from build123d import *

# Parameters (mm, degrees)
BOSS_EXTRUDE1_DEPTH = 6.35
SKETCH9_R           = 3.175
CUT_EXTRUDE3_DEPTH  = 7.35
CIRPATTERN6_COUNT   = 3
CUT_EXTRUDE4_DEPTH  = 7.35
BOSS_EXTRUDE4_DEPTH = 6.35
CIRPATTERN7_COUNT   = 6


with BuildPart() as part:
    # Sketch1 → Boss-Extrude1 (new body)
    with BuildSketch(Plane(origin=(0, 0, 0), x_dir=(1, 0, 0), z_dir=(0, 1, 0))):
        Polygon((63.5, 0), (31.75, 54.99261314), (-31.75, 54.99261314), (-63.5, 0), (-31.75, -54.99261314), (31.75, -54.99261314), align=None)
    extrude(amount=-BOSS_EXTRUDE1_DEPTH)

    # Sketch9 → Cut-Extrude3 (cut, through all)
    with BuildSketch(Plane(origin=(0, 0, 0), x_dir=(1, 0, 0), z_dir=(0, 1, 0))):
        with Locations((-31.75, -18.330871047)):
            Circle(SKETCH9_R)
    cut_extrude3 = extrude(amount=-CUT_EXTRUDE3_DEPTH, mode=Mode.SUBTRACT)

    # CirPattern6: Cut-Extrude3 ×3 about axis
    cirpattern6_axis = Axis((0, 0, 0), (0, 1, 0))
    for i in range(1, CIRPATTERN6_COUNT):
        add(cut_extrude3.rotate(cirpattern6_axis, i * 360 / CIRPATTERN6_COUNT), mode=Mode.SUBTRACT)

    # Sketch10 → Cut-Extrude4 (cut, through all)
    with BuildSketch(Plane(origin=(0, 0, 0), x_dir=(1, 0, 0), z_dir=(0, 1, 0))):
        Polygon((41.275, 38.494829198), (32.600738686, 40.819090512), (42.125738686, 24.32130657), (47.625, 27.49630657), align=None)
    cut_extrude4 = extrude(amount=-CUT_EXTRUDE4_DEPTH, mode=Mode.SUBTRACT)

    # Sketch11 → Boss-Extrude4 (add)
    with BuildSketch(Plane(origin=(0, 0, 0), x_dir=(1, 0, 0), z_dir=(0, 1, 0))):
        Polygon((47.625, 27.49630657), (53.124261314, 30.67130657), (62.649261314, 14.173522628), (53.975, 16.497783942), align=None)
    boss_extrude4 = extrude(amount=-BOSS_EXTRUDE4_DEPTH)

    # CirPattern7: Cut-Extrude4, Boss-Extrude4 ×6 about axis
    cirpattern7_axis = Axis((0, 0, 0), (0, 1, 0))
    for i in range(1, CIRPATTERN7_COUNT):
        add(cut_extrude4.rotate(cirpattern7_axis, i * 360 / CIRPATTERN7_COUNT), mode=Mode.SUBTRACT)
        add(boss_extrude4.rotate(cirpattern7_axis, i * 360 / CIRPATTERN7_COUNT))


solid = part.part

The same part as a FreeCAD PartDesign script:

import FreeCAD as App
import Part
import Sketcher

V = App.Vector
Q = App.Units.Quantity


def add_polygon(sketch, points):
    """Adds a closed chain of lines whose ends are joined by coincident constraints."""
    first, n = sketch.GeometryCount, len(points)
    for a, b in zip(points, points[1:] + points[:1]):
        sketch.addGeometry(Part.LineSegment(App.Vector(*a, 0), App.Vector(*b, 0)), False)
    for i in range(n):
        sketch.addConstraint(Sketcher.Constraint("Coincident", first + i, 2, first + (i + 1) % n, 1))

doc = App.newDocument("Part")
body = doc.addObject("PartDesign::Body", "Body")

# Sketch on XZ plane
sketch1 = body.newObject("Sketcher::SketchObject", "Sketch")
sketch1.AttachmentSupport = (doc.getObject("XZ_Plane"), [""])
sketch1.MapMode = "FlatFace"
add_polygon(sketch1, [(64, 0), (32, -55), (-32, -55), (-64, 0), (-32, 55), (32, 55)])  # lines 0-5
sketch1.addConstraint([
    Sketcher.Constraint("Horizontal", 1),
    Sketcher.Constraint("Horizontal", 4),
    Sketcher.Constraint("Symmetric", 0, 2, 3, 2, -1, 1),
    Sketcher.Constraint("Symmetric", 2, 2, 5, 2, -1, 1),
    Sketcher.Constraint("PointOnObject", 2, 2, -1),
    Sketcher.Constraint("Parallel", 2, 5),
    Sketcher.Constraint("Vertical", 1, 2, 3, 2),
    Sketcher.Constraint("DistanceX", 1, 2, 1, 1, Q("2.5 in")),
    Sketcher.Constraint("Angle", 0, Q("-120 deg")),
    Sketcher.Constraint("DistanceX", 2, 2, 5, 2, Q("5 in")),
])
pad1 = body.newObject("PartDesign::Pad", "Pad")
pad1.Profile = sketch1
pad1.Length = Q("0.25 in")

# Sketch on XZ plane
sketch2 = body.newObject("Sketcher::SketchObject", "Sketch001")
sketch2.AttachmentSupport = (doc.getObject("XZ_Plane"), [""])
sketch2.MapMode = "FlatFace"
sketch2.addGeometry(Part.Circle(V(-31.8, 18.3, 0), V(0, 0, 1), 3.2), False)
sketch2.addConstraint([
    Sketcher.Constraint("Diameter", 0, Q("0.25 in")),
    Sketcher.Constraint("DistanceX", 0, 3, -1, 1, Q("1.25 in")),
    Sketcher.Constraint("DistanceY", -1, 1, 0, 3, Q("18.330871 mm")),
])
pocket1 = body.newObject("PartDesign::Pocket", "Pocket")
pocket1.Profile = sketch2
pocket1.Type = "ThroughAll"
pocket1.Reversed = True
doc.recompute()

polarpattern = body.newObject("PartDesign::PolarPattern", "PolarPattern")
polarpattern.Originals = [pocket1]
polarpattern.Axis = (doc.getObject("Y_Axis"), [""])
polarpattern.Angle = 360
polarpattern.Occurrences = 3
body.Tip = polarpattern

# Sketch on XZ plane
sketch3 = body.newObject("Sketcher::SketchObject", "Sketch002")
sketch3.AttachmentSupport = (doc.getObject("XZ_Plane"), [""])
sketch3.MapMode = "FlatFace"
add_polygon(sketch3, [(41, -38), (33, -41), (42, -24), (48, -27)])  # lines 0-3
sketch3.addConstraint([
    Sketcher.Constraint("Perpendicular", 1, 2),
    Sketcher.Constraint("Perpendicular", 2, 3),
    Sketcher.Constraint("Angle", 0, Q("-165 deg")),
    Sketcher.Constraint("Angle", 1, Q("60 deg")),
    Sketcher.Constraint("Distance", 3, Q("0.5 in")),
    Sketcher.Constraint("Distance", 1, Q("0.75 in")),
    Sketcher.Constraint("DistanceX", -1, 1, 2, 2, Q("1.875 in")),
    Sketcher.Constraint("DistanceY", 0, 2, -1, 1, Q("40.819091 mm")),
])
pocket2 = body.newObject("PartDesign::Pocket", "Pocket001")
pocket2.Profile = sketch3
pocket2.Type = "ThroughAll"
pocket2.Reversed = True

# Sketch on XZ plane
sketch4 = body.newObject("Sketcher::SketchObject", "Sketch003")
sketch4.AttachmentSupport = (doc.getObject("XZ_Plane"), [""])
sketch4.MapMode = "FlatFace"
add_polygon(sketch4, [(53, -31), (48, -27), (54, -16), (63, -14)])  # lines 0-3
sketch4.addConstraint([
    Sketcher.Constraint("Perpendicular", 0, 1),
    Sketcher.Constraint("Parallel", 1, 3),
    Sketcher.Constraint("Angle", 0, Q("150 deg")),
    Sketcher.Constraint("Angle", 2, Q("15 deg")),
    Sketcher.Constraint("Distance", 1, Q("0.5 in")),
    Sketcher.Constraint("Distance", 0, Q("0.25 in")),
    Sketcher.Constraint("DistanceX", -1, 1, 0, 2, Q("1.875 in")),
    Sketcher.Constraint("DistanceY", 0, 2, -1, 1, Q("27.496307 mm")),
])
pad2 = body.newObject("PartDesign::Pad", "Pad001")
pad2.Profile = sketch4
pad2.Length = Q("0.25 in")
doc.recompute()

polarpattern2 = body.newObject("PartDesign::PolarPattern", "PolarPattern001")
polarpattern2.Originals = [pocket2, pad2]
polarpattern2.Axis = (doc.getObject("Y_Axis"), [""])
polarpattern2.Angle = 360
polarpattern2.Occurrences = 6
body.Tip = polarpattern2

doc.recompute()
